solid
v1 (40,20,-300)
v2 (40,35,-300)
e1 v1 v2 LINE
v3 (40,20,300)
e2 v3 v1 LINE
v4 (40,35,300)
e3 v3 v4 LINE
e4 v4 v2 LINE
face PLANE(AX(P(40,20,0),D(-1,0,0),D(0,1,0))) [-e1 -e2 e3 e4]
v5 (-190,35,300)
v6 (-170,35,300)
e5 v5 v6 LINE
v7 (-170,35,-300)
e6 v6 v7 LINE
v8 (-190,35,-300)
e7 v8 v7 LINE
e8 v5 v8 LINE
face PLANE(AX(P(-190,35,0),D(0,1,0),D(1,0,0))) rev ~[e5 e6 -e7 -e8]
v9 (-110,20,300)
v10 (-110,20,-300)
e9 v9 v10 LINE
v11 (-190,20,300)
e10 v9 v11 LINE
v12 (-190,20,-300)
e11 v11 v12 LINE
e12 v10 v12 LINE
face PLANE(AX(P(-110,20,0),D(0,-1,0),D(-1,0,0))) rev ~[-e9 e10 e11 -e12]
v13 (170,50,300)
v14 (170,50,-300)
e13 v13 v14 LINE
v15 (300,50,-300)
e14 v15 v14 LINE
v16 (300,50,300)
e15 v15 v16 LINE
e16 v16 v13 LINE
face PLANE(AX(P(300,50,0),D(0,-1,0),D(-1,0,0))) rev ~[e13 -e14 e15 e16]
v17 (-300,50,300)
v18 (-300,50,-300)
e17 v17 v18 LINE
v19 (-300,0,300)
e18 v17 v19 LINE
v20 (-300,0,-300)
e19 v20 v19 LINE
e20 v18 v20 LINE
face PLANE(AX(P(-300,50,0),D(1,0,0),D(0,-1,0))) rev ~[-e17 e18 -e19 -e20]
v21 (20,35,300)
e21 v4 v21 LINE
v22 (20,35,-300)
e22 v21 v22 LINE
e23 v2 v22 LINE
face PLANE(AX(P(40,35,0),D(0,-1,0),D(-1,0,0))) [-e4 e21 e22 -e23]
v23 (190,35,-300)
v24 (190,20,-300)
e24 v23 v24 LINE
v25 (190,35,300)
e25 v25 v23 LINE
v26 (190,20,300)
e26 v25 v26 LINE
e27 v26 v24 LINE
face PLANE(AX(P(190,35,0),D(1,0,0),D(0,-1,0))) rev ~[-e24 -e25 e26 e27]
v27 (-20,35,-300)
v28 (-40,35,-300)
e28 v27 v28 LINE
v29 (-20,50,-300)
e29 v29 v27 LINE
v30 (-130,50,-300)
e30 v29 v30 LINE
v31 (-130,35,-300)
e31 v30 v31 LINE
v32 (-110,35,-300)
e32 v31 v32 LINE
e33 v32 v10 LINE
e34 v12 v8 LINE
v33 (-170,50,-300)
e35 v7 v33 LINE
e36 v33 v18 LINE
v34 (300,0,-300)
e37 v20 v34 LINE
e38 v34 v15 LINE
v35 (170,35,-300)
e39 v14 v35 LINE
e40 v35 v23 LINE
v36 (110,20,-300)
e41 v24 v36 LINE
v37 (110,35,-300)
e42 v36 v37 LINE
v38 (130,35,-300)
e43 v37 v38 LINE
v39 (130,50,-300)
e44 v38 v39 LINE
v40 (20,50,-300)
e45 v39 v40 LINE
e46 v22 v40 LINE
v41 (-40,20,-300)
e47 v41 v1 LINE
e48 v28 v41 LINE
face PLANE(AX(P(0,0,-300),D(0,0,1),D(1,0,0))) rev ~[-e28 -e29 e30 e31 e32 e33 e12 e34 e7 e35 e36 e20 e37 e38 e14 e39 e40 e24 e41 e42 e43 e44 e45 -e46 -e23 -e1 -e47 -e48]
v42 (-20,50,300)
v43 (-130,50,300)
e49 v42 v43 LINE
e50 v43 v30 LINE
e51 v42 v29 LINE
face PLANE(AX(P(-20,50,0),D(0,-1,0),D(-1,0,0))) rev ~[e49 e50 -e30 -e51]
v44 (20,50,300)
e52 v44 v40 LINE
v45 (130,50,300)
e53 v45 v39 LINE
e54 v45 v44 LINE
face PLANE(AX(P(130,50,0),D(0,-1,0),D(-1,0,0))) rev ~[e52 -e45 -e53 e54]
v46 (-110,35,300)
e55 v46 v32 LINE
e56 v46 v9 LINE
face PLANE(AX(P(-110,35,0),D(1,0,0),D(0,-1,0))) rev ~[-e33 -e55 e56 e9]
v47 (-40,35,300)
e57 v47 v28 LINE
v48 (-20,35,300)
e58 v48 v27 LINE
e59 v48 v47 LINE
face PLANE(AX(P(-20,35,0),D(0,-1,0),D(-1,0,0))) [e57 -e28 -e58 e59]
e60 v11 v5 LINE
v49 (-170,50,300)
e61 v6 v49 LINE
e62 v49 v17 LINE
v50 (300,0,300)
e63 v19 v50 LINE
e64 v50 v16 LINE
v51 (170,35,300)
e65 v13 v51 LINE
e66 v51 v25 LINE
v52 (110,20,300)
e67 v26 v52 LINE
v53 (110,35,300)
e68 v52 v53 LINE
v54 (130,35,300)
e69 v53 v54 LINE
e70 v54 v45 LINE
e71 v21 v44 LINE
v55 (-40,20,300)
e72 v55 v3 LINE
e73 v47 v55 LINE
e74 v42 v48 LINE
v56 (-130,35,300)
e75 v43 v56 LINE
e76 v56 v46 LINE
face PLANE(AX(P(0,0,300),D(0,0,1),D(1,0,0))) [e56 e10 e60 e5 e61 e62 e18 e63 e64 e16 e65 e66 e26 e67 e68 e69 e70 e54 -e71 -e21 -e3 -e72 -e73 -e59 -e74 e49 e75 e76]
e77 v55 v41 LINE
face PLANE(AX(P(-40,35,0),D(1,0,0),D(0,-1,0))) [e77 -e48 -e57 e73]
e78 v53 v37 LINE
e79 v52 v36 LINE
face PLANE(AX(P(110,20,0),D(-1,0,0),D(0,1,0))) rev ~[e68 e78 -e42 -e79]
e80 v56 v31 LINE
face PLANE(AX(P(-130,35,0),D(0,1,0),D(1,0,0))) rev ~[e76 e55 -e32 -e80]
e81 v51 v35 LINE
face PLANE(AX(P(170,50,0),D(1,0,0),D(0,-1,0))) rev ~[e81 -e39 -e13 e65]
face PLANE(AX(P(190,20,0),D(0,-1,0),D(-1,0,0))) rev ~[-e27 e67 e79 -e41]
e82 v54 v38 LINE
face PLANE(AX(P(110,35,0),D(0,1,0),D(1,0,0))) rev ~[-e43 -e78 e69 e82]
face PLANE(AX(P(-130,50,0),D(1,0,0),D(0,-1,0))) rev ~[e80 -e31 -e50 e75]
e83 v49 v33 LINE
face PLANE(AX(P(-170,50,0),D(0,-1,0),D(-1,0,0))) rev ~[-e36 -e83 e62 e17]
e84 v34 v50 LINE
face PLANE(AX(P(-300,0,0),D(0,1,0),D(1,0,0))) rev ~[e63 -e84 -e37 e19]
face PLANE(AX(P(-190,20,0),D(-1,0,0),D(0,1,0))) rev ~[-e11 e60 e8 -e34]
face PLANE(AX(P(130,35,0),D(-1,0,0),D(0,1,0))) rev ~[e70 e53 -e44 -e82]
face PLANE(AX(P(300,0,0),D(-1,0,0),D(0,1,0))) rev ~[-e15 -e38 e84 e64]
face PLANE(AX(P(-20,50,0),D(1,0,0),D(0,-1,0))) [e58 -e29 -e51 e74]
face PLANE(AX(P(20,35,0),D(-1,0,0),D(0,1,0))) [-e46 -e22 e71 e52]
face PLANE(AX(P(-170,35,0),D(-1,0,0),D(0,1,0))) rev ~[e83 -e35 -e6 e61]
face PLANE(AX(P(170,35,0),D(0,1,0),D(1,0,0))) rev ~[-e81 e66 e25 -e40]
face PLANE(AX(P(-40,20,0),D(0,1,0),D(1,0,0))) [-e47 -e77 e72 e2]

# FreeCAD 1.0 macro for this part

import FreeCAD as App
import Part
import Sketcher

V = App.Vector


def add_polygon(sketch, points):
    """Adds a closed chain of lines whose ends are joined by coincident constraints."""
    first, n = sketch.GeometryCount, len(points)
    for a, b in zip(points, points[1:] + points[:1]):
        sketch.addGeometry(Part.LineSegment(App.Vector(*a, 0), App.Vector(*b, 0)), False)
    for i in range(n):
        sketch.addConstraint(Sketcher.Constraint("Coincident", first + i, 2, first + (i + 1) % n, 1))

doc = App.newDocument("Part")
body = doc.addObject("PartDesign::Body", "Body")

# Sketch on XY plane
sketch1 = body.newObject("Sketcher::SketchObject", "Sketch")
sketch1.AttachmentSupport = (doc.getObject("XY_Plane"), [""])
sketch1.MapMode = "FlatFace"
add_polygon(sketch1, [(-300, 50), (-300, 0), (300, 0), (300, 50), (170, 50), (170, 35), (190, 35), (190, 20), (110, 20), (110, 35), (130, 35), (130, 50), (20, 50), (20, 35), (40, 35), (40, 20), (-40, 20), (-40, 35), (-20, 35), (-20, 50), (-130, 50), (-130, 35), (-110, 35), (-110, 20), (-190, 20), (-190, 35), (-170, 35), (-170, 50)])  # lines 0-27
sketch1.addConstraint([
    Sketcher.Constraint("Vertical", 0),
    Sketcher.Constraint("Horizontal", 1),
    Sketcher.Constraint("Vertical", 2),
    Sketcher.Constraint("Horizontal", 3),
    Sketcher.Constraint("Vertical", 4),
    Sketcher.Constraint("Horizontal", 5),
    Sketcher.Constraint("Vertical", 6),
    Sketcher.Constraint("Horizontal", 7),
    Sketcher.Constraint("Vertical", 8),
    Sketcher.Constraint("Horizontal", 9),
    Sketcher.Constraint("Vertical", 10),
    Sketcher.Constraint("Horizontal", 11),
    Sketcher.Constraint("Vertical", 12),
    Sketcher.Constraint("Horizontal", 13),
    Sketcher.Constraint("Vertical", 14),
    Sketcher.Constraint("Horizontal", 15),
    Sketcher.Constraint("Vertical", 16),
    Sketcher.Constraint("Horizontal", 17),
    Sketcher.Constraint("Vertical", 18),
    Sketcher.Constraint("Horizontal", 19),
    Sketcher.Constraint("Vertical", 20),
    Sketcher.Constraint("Horizontal", 21),
    Sketcher.Constraint("Vertical", 22),
    Sketcher.Constraint("Horizontal", 23),
    Sketcher.Constraint("Vertical", 24),
    Sketcher.Constraint("Horizontal", 25),
    Sketcher.Constraint("Vertical", 26),
    Sketcher.Constraint("Horizontal", 27),
    Sketcher.Constraint("Symmetric", 0, 2, 1, 2, -1, 1),
    Sketcher.Constraint("Symmetric", 13, 2, 16, 2, -2),
    Sketcher.Constraint("Symmetric", 11, 2, 18, 2, -2),
    Sketcher.Constraint("Symmetric", 9, 2, 20, 2, -2),
    Sketcher.Constraint("Symmetric", 7, 2, 22, 2, -2),
    Sketcher.Constraint("Symmetric", 5, 2, 24, 2, -2),
    Sketcher.Constraint("Symmetric", 3, 2, 26, 2, -2),
    Sketcher.Constraint("Horizontal", 5, 2, 8, 2),
    Sketcher.Constraint("Horizontal", 3, 2, 10, 2),
    Sketcher.Constraint("Horizontal", 9, 2, 12, 2),
    Sketcher.Constraint("Horizontal", 7, 2, 14, 2),
    Sketcher.Constraint("Equal", 5, 9),
    Sketcher.Constraint("Equal", 9, 13),
    Sketcher.Constraint("Equal", 7, 15),
    Sketcher.Constraint("Equal", 4, 6),
    Sketcher.Constraint("DistanceX", 1, 1, 1, 2, 600.0),
    Sketcher.Constraint("DistanceX", 5, 1, 5, 2, 20.0),
    Sketcher.Constraint("DistanceY", 0, 2, 0, 1, 50.0),
    Sketcher.Constraint("DistanceY", 4, 2, 4, 1, 15.0),
    Sketcher.Constraint("DistanceX", -1, 1, 11, 2, 20.0),
    Sketcher.Constraint("DistanceX", 3, 2, 3, 1, 130.0),
])
pad1 = body.newObject("PartDesign::Pad", "Pad")
pad1.Profile = sketch1
pad1.Length = 600
pad1.Midplane = True

doc.recompute()
